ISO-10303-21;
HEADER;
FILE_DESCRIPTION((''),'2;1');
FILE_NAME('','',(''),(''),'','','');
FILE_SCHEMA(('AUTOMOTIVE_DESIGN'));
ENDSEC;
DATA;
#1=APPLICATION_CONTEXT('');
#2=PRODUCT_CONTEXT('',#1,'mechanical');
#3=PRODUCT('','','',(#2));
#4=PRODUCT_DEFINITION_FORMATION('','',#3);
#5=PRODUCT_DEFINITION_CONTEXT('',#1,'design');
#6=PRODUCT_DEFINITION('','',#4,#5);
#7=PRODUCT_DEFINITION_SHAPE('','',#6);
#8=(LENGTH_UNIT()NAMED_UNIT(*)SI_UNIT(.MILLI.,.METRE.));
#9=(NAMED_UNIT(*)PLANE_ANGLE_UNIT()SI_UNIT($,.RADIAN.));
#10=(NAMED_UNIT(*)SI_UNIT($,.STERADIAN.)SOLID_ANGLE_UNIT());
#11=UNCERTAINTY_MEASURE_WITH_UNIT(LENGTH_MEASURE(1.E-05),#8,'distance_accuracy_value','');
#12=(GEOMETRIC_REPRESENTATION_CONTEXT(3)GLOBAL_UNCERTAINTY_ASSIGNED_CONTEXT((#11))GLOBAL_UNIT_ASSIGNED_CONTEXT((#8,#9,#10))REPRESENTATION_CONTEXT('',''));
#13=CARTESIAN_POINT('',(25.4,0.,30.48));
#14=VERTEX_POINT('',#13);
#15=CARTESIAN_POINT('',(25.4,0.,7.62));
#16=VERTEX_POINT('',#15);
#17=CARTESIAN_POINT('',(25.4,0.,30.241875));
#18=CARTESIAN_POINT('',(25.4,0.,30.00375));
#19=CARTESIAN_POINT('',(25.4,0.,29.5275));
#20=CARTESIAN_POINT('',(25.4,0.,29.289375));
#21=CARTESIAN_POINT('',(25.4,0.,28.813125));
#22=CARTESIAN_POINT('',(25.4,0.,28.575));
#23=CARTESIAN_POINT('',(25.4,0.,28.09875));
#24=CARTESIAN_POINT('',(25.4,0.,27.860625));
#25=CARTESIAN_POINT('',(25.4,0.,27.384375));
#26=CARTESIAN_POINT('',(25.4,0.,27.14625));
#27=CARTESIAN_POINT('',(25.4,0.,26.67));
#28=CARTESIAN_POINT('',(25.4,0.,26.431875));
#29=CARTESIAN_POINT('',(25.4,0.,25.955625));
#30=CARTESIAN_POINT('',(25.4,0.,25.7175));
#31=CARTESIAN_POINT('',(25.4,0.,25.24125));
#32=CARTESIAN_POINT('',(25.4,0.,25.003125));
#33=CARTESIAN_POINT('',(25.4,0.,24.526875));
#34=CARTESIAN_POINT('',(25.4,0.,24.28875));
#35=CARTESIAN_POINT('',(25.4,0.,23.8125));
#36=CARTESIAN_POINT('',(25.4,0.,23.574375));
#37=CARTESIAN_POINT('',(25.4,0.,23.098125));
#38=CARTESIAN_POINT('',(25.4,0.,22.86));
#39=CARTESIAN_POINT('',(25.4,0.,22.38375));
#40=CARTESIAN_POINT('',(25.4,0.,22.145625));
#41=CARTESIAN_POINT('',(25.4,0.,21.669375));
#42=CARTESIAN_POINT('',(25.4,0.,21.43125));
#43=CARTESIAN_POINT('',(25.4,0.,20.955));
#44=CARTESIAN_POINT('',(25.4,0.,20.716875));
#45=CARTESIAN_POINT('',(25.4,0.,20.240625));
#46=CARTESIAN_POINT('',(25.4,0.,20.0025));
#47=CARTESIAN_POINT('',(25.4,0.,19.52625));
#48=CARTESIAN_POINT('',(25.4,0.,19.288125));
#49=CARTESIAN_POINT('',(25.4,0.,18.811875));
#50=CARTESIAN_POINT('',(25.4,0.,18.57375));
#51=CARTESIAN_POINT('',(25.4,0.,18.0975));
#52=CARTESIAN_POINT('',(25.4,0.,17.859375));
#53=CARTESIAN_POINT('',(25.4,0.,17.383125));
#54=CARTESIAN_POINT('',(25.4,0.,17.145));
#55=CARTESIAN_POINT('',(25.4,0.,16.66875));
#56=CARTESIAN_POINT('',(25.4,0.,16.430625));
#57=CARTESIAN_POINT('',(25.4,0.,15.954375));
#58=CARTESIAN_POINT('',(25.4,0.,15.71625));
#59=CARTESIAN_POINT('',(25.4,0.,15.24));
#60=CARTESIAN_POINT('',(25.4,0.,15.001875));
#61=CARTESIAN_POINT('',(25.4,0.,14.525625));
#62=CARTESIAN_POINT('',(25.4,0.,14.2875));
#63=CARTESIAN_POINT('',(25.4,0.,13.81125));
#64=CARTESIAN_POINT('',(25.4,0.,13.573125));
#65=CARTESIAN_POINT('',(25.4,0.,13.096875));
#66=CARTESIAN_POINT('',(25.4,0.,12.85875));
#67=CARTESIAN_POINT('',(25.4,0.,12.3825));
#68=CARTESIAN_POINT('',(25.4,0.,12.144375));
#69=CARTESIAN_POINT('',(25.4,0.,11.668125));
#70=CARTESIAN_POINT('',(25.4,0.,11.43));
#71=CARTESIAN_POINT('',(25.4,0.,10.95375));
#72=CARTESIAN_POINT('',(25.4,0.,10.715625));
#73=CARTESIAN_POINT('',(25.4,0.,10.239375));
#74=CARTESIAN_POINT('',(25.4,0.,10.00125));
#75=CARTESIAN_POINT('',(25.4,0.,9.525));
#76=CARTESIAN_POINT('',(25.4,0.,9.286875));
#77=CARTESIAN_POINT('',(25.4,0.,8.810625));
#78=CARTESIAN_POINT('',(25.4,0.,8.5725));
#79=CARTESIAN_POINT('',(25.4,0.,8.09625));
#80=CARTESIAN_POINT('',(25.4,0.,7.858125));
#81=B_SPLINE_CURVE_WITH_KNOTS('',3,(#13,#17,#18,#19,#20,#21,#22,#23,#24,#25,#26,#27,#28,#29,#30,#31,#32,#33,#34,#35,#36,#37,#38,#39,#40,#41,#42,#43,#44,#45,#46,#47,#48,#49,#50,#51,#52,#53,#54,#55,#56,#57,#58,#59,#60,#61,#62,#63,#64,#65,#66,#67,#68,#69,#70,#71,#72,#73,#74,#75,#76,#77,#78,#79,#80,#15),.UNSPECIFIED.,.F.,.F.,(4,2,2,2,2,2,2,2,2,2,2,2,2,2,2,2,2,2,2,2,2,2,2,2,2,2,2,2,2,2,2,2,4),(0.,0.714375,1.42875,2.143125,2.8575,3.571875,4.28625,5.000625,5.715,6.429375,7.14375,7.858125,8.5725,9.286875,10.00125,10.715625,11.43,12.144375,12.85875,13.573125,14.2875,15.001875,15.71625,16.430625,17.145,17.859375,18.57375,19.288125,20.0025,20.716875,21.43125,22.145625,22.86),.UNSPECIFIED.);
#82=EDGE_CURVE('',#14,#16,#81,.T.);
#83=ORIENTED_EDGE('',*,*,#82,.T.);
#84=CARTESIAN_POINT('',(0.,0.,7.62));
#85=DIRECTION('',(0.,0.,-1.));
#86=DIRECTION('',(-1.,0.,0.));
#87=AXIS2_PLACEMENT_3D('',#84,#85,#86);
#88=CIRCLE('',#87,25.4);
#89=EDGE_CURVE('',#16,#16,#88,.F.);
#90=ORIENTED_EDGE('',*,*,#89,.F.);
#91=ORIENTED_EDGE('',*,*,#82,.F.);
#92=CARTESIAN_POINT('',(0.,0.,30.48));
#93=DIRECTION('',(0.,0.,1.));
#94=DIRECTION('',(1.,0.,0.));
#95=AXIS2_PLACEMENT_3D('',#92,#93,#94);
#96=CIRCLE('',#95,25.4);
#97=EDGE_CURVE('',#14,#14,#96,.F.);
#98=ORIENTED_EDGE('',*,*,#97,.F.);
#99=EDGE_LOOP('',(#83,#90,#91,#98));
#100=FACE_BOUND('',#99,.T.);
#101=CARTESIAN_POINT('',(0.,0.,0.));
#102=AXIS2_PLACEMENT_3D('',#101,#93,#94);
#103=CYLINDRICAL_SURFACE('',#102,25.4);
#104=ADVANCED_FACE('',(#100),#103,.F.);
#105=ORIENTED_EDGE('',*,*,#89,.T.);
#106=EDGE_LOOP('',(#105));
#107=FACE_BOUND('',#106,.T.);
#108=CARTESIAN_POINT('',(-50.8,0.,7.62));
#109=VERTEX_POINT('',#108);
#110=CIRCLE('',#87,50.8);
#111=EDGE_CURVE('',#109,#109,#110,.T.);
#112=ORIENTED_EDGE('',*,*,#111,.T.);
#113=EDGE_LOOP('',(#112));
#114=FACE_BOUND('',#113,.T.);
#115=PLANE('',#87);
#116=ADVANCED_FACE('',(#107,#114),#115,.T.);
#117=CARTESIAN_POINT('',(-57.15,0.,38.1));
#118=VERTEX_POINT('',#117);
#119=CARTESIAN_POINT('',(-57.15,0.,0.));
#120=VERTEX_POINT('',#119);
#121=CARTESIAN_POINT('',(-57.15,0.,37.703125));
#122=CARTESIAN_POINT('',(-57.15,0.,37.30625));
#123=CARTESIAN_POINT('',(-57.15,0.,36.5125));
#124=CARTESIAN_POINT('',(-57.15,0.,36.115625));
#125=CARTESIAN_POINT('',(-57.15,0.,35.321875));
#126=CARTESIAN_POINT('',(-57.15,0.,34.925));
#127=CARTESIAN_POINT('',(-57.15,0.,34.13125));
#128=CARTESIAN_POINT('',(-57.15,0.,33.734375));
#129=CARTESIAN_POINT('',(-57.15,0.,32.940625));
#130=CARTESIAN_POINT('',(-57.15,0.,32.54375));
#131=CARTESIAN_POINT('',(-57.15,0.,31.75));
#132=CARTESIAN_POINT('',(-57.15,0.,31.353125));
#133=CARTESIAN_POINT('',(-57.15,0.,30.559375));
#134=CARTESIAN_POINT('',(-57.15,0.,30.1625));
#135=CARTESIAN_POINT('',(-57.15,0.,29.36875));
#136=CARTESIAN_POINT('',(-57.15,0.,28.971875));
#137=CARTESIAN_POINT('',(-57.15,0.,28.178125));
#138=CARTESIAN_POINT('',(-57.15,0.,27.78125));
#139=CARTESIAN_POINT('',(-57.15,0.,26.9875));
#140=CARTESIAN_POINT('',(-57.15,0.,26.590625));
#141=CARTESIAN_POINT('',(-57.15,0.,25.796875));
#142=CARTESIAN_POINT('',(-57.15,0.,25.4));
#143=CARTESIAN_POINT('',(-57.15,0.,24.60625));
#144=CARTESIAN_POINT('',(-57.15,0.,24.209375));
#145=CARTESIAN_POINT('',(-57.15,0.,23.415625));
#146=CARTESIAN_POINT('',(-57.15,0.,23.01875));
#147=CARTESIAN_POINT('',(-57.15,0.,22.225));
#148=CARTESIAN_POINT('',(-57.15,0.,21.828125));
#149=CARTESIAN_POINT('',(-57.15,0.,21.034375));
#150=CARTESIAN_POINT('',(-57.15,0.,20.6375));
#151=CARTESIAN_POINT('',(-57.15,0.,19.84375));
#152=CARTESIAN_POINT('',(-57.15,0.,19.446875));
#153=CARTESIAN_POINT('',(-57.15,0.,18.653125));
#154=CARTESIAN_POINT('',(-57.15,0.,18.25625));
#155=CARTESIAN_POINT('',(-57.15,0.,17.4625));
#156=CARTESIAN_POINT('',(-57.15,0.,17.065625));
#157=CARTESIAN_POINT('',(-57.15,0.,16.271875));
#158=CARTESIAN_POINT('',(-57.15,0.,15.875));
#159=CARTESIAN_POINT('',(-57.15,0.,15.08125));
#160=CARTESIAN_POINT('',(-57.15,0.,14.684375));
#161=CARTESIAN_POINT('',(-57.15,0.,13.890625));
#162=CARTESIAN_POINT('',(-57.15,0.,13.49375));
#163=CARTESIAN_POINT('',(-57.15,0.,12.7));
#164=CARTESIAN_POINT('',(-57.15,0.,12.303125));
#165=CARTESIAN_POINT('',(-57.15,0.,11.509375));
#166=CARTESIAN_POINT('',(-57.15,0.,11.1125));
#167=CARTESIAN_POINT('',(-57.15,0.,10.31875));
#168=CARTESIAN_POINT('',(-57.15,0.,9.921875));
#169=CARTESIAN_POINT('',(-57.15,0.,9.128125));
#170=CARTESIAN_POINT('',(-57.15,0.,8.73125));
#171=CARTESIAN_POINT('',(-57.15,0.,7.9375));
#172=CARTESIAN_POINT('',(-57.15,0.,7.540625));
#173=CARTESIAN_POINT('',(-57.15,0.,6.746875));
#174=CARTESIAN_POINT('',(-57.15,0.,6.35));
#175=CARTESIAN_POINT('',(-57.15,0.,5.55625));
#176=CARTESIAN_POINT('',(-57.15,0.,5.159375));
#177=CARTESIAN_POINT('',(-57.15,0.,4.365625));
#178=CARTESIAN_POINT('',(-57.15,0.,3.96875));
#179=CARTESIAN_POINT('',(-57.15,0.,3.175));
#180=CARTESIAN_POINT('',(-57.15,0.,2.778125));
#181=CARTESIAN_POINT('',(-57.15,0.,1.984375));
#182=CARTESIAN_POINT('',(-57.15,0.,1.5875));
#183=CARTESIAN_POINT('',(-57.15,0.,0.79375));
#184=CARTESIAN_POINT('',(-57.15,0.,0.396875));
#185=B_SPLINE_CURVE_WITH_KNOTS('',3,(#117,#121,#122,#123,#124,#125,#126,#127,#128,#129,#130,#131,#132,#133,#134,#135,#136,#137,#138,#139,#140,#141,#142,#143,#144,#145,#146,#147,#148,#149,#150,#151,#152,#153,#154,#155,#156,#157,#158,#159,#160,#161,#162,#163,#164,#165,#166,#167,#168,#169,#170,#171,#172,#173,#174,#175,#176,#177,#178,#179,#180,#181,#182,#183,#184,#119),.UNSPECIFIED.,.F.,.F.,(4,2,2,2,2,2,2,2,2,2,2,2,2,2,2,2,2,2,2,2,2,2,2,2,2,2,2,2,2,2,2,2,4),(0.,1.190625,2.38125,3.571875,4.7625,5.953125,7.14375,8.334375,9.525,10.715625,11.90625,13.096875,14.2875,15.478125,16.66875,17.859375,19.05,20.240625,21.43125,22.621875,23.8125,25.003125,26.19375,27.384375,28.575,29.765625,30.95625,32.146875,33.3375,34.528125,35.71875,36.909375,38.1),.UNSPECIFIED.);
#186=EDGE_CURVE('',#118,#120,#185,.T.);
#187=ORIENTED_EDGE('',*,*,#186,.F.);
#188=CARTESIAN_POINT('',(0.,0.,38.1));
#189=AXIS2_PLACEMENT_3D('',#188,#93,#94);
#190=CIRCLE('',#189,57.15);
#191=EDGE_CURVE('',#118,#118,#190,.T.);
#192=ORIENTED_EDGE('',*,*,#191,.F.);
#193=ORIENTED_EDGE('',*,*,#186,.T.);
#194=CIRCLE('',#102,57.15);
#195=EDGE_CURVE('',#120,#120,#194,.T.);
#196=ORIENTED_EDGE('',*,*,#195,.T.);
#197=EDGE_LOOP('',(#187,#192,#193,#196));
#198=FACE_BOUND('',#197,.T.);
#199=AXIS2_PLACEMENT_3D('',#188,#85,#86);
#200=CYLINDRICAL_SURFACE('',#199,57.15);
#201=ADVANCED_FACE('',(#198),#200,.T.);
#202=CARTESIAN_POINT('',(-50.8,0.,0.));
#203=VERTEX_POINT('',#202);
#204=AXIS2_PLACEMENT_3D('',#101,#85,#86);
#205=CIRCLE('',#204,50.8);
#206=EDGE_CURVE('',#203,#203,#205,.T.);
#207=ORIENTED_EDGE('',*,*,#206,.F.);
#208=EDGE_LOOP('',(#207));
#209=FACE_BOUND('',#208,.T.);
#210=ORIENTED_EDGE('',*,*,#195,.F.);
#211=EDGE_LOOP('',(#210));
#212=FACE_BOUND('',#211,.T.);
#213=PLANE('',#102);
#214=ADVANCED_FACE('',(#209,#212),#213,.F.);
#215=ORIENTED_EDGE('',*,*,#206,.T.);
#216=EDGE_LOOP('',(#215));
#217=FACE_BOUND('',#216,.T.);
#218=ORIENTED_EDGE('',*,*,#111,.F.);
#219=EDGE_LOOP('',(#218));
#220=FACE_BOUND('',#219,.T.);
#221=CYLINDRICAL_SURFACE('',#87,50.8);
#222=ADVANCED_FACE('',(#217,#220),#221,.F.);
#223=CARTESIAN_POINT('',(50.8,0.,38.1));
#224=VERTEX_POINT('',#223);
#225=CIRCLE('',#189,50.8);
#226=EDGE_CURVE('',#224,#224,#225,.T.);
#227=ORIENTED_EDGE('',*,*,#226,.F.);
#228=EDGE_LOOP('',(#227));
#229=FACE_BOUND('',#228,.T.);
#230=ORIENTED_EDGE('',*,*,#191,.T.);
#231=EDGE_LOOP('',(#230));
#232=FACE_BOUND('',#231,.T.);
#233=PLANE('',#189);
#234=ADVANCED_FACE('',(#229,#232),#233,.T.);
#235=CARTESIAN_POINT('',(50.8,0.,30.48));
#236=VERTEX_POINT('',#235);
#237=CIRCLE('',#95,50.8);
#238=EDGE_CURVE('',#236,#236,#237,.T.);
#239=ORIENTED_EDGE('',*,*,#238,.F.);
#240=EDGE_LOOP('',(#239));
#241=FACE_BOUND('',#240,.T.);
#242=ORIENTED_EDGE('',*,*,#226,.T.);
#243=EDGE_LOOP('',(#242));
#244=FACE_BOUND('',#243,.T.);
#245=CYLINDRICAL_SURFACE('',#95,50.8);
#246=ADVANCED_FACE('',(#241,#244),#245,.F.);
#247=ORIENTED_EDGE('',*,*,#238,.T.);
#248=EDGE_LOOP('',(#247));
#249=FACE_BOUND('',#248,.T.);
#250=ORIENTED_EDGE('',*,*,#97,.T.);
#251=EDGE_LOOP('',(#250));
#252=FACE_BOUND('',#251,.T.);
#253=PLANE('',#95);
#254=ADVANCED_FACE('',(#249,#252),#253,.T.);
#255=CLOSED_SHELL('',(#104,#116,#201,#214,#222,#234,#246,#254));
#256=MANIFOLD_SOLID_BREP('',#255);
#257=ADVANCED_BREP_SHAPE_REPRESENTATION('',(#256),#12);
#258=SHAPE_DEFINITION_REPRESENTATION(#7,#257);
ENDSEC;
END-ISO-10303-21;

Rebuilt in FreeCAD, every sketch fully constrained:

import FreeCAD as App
import Part
import Sketcher

V = App.Vector
Q = App.Units.Quantity

doc = App.newDocument("Part")
params = doc.addObject("Spreadsheet::Sheet", "Params")
for row, (alias, value) in enumerate([
    ("sketch1_diameter", "4.5 in"),
    ("pad1_length", "1.5 in"),
    ("sketch2_diameter", "2 in"),
    ("pocket1_length", "1.5 in"),
    ("sketch3_diameter", "4 in"),
    ("pocket2_length", "0.3 in"),
    ("sketch4_diameter", "4 in"),
    ("pocket3_length", "0.3 in"),
], start=1):
    params.set(f"A{row}", alias)
    params.set(f"B{row}", "=" + value)
    params.setAlias(f"B{row}", alias)

body = doc.addObject("PartDesign::Body", "Body")

# Sketch on XY plane
sketch1 = body.newObject("Sketcher::SketchObject", "Sketch")
sketch1.AttachmentSupport = (doc.getObject("XY_Plane"), [""])
sketch1.MapMode = "FlatFace"
sketch1.addGeometry(Part.Circle(V(0, 0, 0), V(0, 0, 1), 57), False)
sketch1.addConstraint([
    Sketcher.Constraint("Coincident", 0, 3, -1, 1),
    Sketcher.Constraint("Diameter", 0, Q("4.5 in")),
])
sketch1.setExpression("Constraints[1]", "Params.sketch1_diameter")
pad1 = body.newObject("PartDesign::Pad", "Pad")
pad1.Profile = sketch1
pad1.setExpression("Length", "Params.pad1_length")

# Sketch on XY plane
sketch2 = body.newObject("Sketcher::SketchObject", "Sketch001")
sketch2.AttachmentSupport = (doc.getObject("XY_Plane"), [""])
sketch2.MapMode = "FlatFace"
sketch2.AttachmentOffset = App.Placement(V(0, 0, 1.5 * 25.4), App.Rotation())
sketch2.addGeometry(Part.Circle(V(0, 0, 0), V(0, 0, 1), 25), False)
sketch2.addConstraint([
    Sketcher.Constraint("Coincident", 0, 3, -1, 1),
    Sketcher.Constraint("Diameter", 0, Q("2 in")),
])
sketch2.setExpression("Constraints[1]", "Params.sketch2_diameter")
pocket1 = body.newObject("PartDesign::Pocket", "Pocket")
pocket1.Profile = sketch2
pocket1.setExpression("Length", "Params.pocket1_length")

# Sketch on XY plane
sketch3 = body.newObject("Sketcher::SketchObject", "Sketch002")
sketch3.AttachmentSupport = (doc.getObject("XY_Plane"), [""])
sketch3.MapMode = "FlatFace"
sketch3.AttachmentOffset = App.Placement(V(0, 0, 1.5 * 25.4), App.Rotation())
sketch3.addGeometry(Part.Circle(V(0, 0, 0), V(0, 0, 1), 51), False)
sketch3.addConstraint([
    Sketcher.Constraint("Coincident", 0, 3, -1, 1),
    Sketcher.Constraint("Diameter", 0, Q("4 in")),
])
sketch3.setExpression("Constraints[1]", "Params.sketch3_diameter")
pocket2 = body.newObject("PartDesign::Pocket", "Pocket001")
pocket2.Profile = sketch3
pocket2.setExpression("Length", "Params.pocket2_length")

# Sketch on XY plane
sketch4 = body.newObject("Sketcher::SketchObject", "Sketch003")
sketch4.AttachmentSupport = (doc.getObject("XY_Plane"), [""])
sketch4.MapMode = "FlatFace"
sketch4.AttachmentOffset = App.Placement(V(0, 0, 0.3 * 25.4), App.Rotation())
sketch4.addGeometry(Part.Circle(V(0, 0, 0), V(0, 0, 1), 51), False)
sketch4.addConstraint([
    Sketcher.Constraint("Coincident", 0, 3, -1, 1),
    Sketcher.Constraint("Diameter", 0, Q("4 in")),
])
sketch4.setExpression("Constraints[1]", "Params.sketch4_diameter")
pocket3 = body.newObject("PartDesign::Pocket", "Pocket002")
pocket3.Profile = sketch4
pocket3.setExpression("Length", "Params.pocket3_length")

doc.recompute()
